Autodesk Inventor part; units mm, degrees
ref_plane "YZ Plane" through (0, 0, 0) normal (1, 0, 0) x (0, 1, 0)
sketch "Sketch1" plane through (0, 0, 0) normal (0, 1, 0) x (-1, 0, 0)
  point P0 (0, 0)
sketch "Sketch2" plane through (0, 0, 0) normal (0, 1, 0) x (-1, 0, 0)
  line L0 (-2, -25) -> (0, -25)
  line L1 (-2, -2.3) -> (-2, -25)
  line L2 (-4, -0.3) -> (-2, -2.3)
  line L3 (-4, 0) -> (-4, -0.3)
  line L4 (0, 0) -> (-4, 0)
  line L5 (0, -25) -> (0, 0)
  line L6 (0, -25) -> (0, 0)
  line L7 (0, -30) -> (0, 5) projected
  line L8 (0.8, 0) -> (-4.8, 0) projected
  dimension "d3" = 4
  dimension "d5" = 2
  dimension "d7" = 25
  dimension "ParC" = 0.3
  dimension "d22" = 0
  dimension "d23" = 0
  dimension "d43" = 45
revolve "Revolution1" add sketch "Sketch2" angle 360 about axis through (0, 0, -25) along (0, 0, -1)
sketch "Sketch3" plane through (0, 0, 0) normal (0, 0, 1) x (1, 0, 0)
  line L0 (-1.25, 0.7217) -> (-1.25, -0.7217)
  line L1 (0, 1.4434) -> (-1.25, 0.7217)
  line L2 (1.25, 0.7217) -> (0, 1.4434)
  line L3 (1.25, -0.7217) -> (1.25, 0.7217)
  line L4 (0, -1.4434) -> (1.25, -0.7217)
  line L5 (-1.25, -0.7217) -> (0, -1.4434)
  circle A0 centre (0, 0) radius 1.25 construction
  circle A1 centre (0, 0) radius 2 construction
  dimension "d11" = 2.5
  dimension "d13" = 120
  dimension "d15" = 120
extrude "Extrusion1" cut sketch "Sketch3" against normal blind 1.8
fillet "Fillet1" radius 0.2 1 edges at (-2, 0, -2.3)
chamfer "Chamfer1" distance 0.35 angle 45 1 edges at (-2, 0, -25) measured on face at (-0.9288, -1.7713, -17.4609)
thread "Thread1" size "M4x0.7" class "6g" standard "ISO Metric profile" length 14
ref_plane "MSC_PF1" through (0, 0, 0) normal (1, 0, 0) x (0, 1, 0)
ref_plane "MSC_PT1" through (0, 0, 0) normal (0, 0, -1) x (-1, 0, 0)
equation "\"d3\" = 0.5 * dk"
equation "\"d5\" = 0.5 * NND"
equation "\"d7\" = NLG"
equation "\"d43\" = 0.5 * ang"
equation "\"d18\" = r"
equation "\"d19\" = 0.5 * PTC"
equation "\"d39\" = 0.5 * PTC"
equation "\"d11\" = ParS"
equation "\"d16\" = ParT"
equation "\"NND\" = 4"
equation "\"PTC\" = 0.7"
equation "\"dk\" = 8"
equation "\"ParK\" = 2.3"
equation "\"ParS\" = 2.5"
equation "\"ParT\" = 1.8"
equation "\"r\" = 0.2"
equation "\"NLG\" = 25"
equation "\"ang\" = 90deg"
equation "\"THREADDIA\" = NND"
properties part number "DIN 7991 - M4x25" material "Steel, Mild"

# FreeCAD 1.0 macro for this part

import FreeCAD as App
import Part
import Sketcher

V = App.Vector
Q = App.Units.Quantity


def edges_at(feature, points):
    """Names of the edges that pass closest to the given points."""
    edges = feature.Shape.Edges
    near = lambda p: min(range(len(edges)), key=lambda i: edges[i].distToShape(Part.Vertex(*p))[0])
    return sorted({f"Edge{near(p) + 1}" for p in points})

doc = App.newDocument("Part")
params = doc.addObject("Spreadsheet::Sheet", "Params")
for row, (alias, value) in enumerate([
    ("sketch1_width", "2 mm"),
    ("sketch1_width2", "4 mm"),
    ("sketch1_height", "25 mm"),
    ("sketch1_height2", "0.3 mm"),
    ("revolution_angle", "360 deg"),
    ("pocket1_length", "1.8 mm"),
    ("fillet_radius", "0.2 mm"),
    ("chamfer_size", "0.35 mm"),
], start=1):
    params.set(f"A{row}", alias)
    params.set(f"B{row}", "=" + value)
    params.setAlias(f"B{row}", alias)

body = doc.addObject("PartDesign::Body", "Body")

# Sketch on XZ plane
sketch1 = body.newObject("Sketcher::SketchObject", "Sketch")
sketch1.AttachmentSupport = (doc.getObject("XZ_Plane"), [""])
sketch1.MapMode = "FlatFace"
sketch1.addGeometry(Part.LineSegment(V(2, -2.3, 0), V(2, -25, 0)), False)
sketch1.addGeometry(Part.LineSegment(V(2, -25, 0), V(0, -25, 0)), False)
sketch1.addGeometry(Part.LineSegment(V(0, -25, 0), V(0, 0, 0)), False)
sketch1.addGeometry(Part.LineSegment(V(0, 0, 0), V(4, 0, 0)), False)
sketch1.addGeometry(Part.LineSegment(V(4, 0, 0), V(4, -0.3, 0)), False)
sketch1.addGeometry(Part.LineSegment(V(4, -0.3, 0), V(2, -2.3, 0)), False)
sketch1.addConstraint(Sketcher.Constraint("Coincident", 0, 2, 1, 1))
sketch1.addConstraint(Sketcher.Constraint("Coincident", 1, 2, 2, 1))
sketch1.addConstraint(Sketcher.Constraint("Coincident", 2, 2, 3, 1))
sketch1.addConstraint(Sketcher.Constraint("Coincident", 3, 2, 4, 1))
sketch1.addConstraint(Sketcher.Constraint("Coincident", 4, 2, 5, 1))
sketch1.addConstraint(Sketcher.Constraint("Coincident", 5, 2, 0, 1))
sketch1.addConstraint(Sketcher.Constraint("Vertical", 0))
sketch1.addConstraint(Sketcher.Constraint("Horizontal", 1))
sketch1.addConstraint(Sketcher.Constraint("Vertical", 2))
sketch1.addConstraint(Sketcher.Constraint("Horizontal", 3))
sketch1.addConstraint(Sketcher.Constraint("Vertical", 4))
sketch1.addConstraint(Sketcher.Constraint("Coincident", 2, 2, -1, 1))
sketch1.addConstraint(Sketcher.Constraint("DistanceX", 1, 2, 1, 1, 2.0))
sketch1.addConstraint(Sketcher.Constraint("DistanceX", 3, 1, 3, 2, 4.0))
sketch1.addConstraint(Sketcher.Constraint("DistanceY", 2, 1, 2, 2, 25.0))
sketch1.addConstraint(Sketcher.Constraint("DistanceY", 4, 2, 4, 1, 0.3))
sketch1.addConstraint(Sketcher.Constraint("DistanceY", 5, 2, 4, 2, 2.0))
sketch1.setExpression("Constraints[12]", "Params.sketch1_width")
sketch1.setExpression("Constraints[13]", "Params.sketch1_width2")
sketch1.setExpression("Constraints[14]", "Params.sketch1_height")
sketch1.setExpression("Constraints[15]", "Params.sketch1_height2")
revolution = body.newObject("PartDesign::Revolution", "Revolution")
revolution.Profile = sketch1
revolution.ReferenceAxis = (sketch1, ["V_Axis"])
revolution.setExpression("Angle", "Params.revolution_angle")

# Sketch on XY plane
sketch2 = body.newObject("Sketcher::SketchObject", "Sketch001")
sketch2.AttachmentSupport = (doc.getObject("XY_Plane"), [""])
sketch2.MapMode = "FlatFace"
sketch2.addGeometry(Part.LineSegment(V(0, 1.4, 0), V(-1.2, 0.7, 0)), False)
sketch2.addGeometry(Part.LineSegment(V(-1.2, 0.7, 0), V(-1.2, -0.7, 0)), False)
sketch2.addGeometry(Part.LineSegment(V(-1.2, -0.7, 0), V(0, -1.4, 0)), False)
sketch2.addGeometry(Part.LineSegment(V(0, -1.4, 0), V(1.2, -0.7, 0)), False)
sketch2.addGeometry(Part.LineSegment(V(1.2, -0.7, 0), V(1.2, 0.7, 0)), False)
sketch2.addGeometry(Part.LineSegment(V(1.2, 0.7, 0), V(0, 1.4, 0)), False)
sketch2.addConstraint(Sketcher.Constraint("Coincident", 0, 2, 1, 1))
sketch2.addConstraint(Sketcher.Constraint("Coincident", 1, 2, 2, 1))
sketch2.addConstraint(Sketcher.Constraint("Coincident", 2, 2, 3, 1))
sketch2.addConstraint(Sketcher.Constraint("Coincident", 3, 2, 4, 1))
sketch2.addConstraint(Sketcher.Constraint("Coincident", 4, 2, 5, 1))
sketch2.addConstraint(Sketcher.Constraint("Coincident", 5, 2, 0, 1))
sketch2.addConstraint(Sketcher.Constraint("Vertical", 1))
sketch2.addConstraint(Sketcher.Constraint("Vertical", 4))
sketch2.addConstraint(Sketcher.Constraint("Symmetric", 0, 2, 3, 2, -1, 1))
sketch2.addConstraint(Sketcher.Constraint("Symmetric", 2, 2, 5, 2, -1, 1))
sketch2.addConstraint(Sketcher.Constraint("PointOnObject", 2, 2, -2))
sketch2.addConstraint(Sketcher.Constraint("Parallel", 2, 5))
sketch2.addConstraint(Sketcher.Constraint("Horizontal", 1, 2, 3, 2))
sketch2.addConstraint(Sketcher.Constraint("DistanceX", 1, 2, 3, 2, 2.5))
sketch2.addConstraint(Sketcher.Constraint("Angle", 0, Q("-149.9996 deg")))
sketch2.addConstraint(Sketcher.Constraint("DistanceY", 1, 2, 1, 1, 1.4434))
pocket1 = body.newObject("PartDesign::Pocket", "Pocket")
pocket1.Profile = sketch2
pocket1.setExpression("Length", "Params.pocket1_length")
doc.recompute()

fillet = body.newObject("PartDesign::Fillet", "Fillet")
fillet.Base = (pocket1, edges_at(pocket1, [(-2, 0, -2.3)]))
fillet.setExpression("Radius", "Params.fillet_radius")
doc.recompute()

chamfer = body.newObject("PartDesign::Chamfer", "Chamfer")
chamfer.Base = (fillet, edges_at(fillet, [(-2, 0, -25)]))
chamfer.setExpression("Size", "Params.chamfer_size")

doc.recompute()
